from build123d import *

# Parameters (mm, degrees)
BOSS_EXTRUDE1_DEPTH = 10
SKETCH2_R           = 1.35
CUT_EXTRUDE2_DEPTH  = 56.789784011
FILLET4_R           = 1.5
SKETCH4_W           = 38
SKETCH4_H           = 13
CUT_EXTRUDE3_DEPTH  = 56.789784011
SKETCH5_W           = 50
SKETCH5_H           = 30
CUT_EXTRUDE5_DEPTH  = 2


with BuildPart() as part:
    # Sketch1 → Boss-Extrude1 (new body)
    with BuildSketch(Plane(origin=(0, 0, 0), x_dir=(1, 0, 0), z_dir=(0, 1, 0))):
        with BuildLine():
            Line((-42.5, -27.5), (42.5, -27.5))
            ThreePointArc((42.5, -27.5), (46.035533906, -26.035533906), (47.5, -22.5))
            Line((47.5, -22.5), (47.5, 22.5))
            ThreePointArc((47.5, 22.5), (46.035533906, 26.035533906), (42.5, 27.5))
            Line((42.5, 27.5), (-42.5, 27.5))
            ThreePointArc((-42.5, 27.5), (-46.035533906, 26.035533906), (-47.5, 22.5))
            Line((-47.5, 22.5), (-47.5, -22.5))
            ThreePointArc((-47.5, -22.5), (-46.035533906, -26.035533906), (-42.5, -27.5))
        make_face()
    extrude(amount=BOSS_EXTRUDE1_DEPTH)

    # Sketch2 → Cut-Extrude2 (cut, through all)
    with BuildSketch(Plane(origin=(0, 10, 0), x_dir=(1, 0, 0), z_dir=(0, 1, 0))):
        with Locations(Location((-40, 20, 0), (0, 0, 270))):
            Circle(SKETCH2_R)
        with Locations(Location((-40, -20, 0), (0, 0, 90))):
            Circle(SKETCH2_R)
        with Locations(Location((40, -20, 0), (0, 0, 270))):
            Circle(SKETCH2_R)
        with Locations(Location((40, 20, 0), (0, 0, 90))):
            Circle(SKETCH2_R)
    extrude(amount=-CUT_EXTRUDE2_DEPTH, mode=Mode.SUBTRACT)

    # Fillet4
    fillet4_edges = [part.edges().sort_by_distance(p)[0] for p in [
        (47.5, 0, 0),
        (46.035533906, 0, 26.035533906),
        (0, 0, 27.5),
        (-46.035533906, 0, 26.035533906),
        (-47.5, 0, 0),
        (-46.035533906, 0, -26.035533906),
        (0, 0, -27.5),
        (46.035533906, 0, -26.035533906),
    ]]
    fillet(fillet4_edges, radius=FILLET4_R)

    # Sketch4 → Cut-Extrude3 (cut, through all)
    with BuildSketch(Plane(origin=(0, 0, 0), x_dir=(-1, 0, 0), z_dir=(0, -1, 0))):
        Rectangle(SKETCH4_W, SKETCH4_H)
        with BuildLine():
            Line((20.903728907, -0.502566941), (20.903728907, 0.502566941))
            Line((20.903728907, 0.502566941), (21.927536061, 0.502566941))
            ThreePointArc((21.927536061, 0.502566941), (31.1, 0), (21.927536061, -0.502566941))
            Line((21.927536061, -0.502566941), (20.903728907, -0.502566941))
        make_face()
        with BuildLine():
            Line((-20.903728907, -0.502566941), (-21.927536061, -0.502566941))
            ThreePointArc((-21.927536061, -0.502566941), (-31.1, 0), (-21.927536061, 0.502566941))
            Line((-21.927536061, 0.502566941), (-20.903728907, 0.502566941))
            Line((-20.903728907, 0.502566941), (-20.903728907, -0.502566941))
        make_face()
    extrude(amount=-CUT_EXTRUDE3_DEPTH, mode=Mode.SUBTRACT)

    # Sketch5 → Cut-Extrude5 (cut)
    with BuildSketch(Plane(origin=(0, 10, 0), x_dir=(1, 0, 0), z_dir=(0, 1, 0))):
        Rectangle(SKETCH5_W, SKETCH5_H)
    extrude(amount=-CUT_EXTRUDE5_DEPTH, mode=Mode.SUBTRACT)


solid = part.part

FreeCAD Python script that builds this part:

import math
import FreeCAD as App
import Part
import Sketcher
from FreeCAD import Vector
Q = App.Units.Quantity


def edges_at(feature, points):
    """Names of the edges that pass closest to the given points."""
    edges = feature.Shape.Edges
    near = lambda p: min(range(len(edges)), key=lambda i: edges[i].distToShape(Part.Vertex(*p))[0])
    return sorted({f"Edge{near(p) + 1}" for p in points})


def add_polygon(sketch, points):
    """Adds a closed chain of lines whose ends are joined by coincident constraints."""
    first, n = sketch.GeometryCount, len(points)
    for a, b in zip(points, points[1:] + points[:1]):
        sketch.addGeometry(Part.LineSegment(App.Vector(*a, 0), App.Vector(*b, 0)), False)
    for i in range(n):
        sketch.addConstraint(Sketcher.Constraint("Coincident", first + i, 2, first + (i + 1) % n, 1))

doc = App.newDocument("Part")
params = doc.addObject("Spreadsheet::Sheet", "Params")
for row, (alias, value) in enumerate([
    ("sketch1_radius", "5 mm"),
    ("sketch1_width", "85 mm"),
    ("sketch1_height", "45 mm"),
    ("pad1_length", "10 mm"),
    ("sketch2_diameter", "2.7 mm"),
    ("fillet_radius", "1.5 mm"),
    ("sketch3_radius", "4.6 mm"),
    ("sketch3_width", "38 mm"),
    ("sketch3_height", "13 mm"),
    ("sketch4_width", "50 mm"),
    ("sketch4_height", "30 mm"),
    ("pocket3_length", "2 mm"),
], start=1):
    params.set(f"A{row}", alias)
    params.set(f"B{row}", "=" + value)
    params.setAlias(f"B{row}", alias)

body = doc.addObject("PartDesign::Body", "Body")

# Sketch on XZ plane
sketch1 = doc.addObject("Sketcher::SketchObject", "Sketch")
body.addObject(sketch1)
sketch1.AttachmentSupport = (doc.XZ_Plane, [""])
sketch1.MapMode = "FlatFace"
sketch1.addGeometry(Part.LineSegment(Vector(-42, 28, 0), Vector(42, 28, 0)), False)
sketch1.addGeometry(Part.ArcOfCircle(Part.Circle(Vector(42, 22, 0), Vector(0, 0, 1), 5), math.radians(0), math.radians(90)), False)
sketch1.addGeometry(Part.LineSegment(Vector(48, 22, 0), Vector(48, -22, 0)), False)
sketch1.addGeometry(Part.ArcOfCircle(Part.Circle(Vector(42, -22, 0), Vector(0, 0, 1), 5), math.radians(-90), math.radians(0)), False)
sketch1.addGeometry(Part.LineSegment(Vector(42, -28, 0), Vector(-42, -28, 0)), False)
sketch1.addGeometry(Part.ArcOfCircle(Part.Circle(Vector(-42, -22, 0), Vector(0, 0, 1), 5), math.radians(180), math.radians(270)), False)
sketch1.addGeometry(Part.LineSegment(Vector(-48, -22, 0), Vector(-48, 22, 0)), False)
sketch1.addGeometry(Part.ArcOfCircle(Part.Circle(Vector(-42, 22, 0), Vector(0, 0, 1), 5), math.radians(90), math.radians(180)), False)
sketch1.addConstraint(Sketcher.Constraint("Tangent", 0, 2, 1, 2))
sketch1.addConstraint(Sketcher.Constraint("Tangent", 1, 1, 2, 1))
sketch1.addConstraint(Sketcher.Constraint("Tangent", 2, 2, 3, 2))
sketch1.addConstraint(Sketcher.Constraint("Tangent", 3, 1, 4, 1))
sketch1.addConstraint(Sketcher.Constraint("Tangent", 4, 2, 5, 2))
sketch1.addConstraint(Sketcher.Constraint("Tangent", 5, 1, 6, 1))
sketch1.addConstraint(Sketcher.Constraint("Tangent", 6, 2, 7, 2))
sketch1.addConstraint(Sketcher.Constraint("Tangent", 7, 1, 0, 1))
sketch1.addConstraint(Sketcher.Constraint("Horizontal", 0))
sketch1.addConstraint(Sketcher.Constraint("Vertical", 2))
sketch1.addConstraint(Sketcher.Constraint("Horizontal", 4))
sketch1.addConstraint(Sketcher.Constraint("Vertical", 6))
sketch1.addConstraint(Sketcher.Constraint("Equal", 1, 3))
sketch1.addConstraint(Sketcher.Constraint("Equal", 3, 5))
sketch1.addConstraint(Sketcher.Constraint("Equal", 5, 7))
sketch1.addConstraint(Sketcher.Constraint("Symmetric", 1, 3, 5, 3, -1, 1))
sketch1.addConstraint(Sketcher.Constraint("Radius", 1, Q("5 mm")))
sketch1.addConstraint(Sketcher.Constraint("DistanceX", 0, 1, 0, 2, Q("85 mm")))
sketch1.addConstraint(Sketcher.Constraint("DistanceY", 2, 2, 2, 1, Q("45 mm")))
sketch1.setExpression("Constraints[16]", "Params.sketch1_radius")
sketch1.setExpression("Constraints[17]", "Params.sketch1_width")
sketch1.setExpression("Constraints[18]", "Params.sketch1_height")
pad1 = doc.addObject("PartDesign::Pad", "Pad")
body.addObject(pad1)
pad1.Profile = sketch1
pad1.setExpression("Length", "Params.pad1_length")
pad1.Reversed = True

# Sketch on XZ plane
sketch2 = doc.addObject("Sketcher::SketchObject", "Sketch001")
body.addObject(sketch2)
sketch2.AttachmentSupport = (doc.XZ_Plane, [""])
sketch2.MapMode = "FlatFace"
sketch2.AttachmentOffset = App.Placement(Vector(0, 0, -10), App.Rotation())
sketch2.addGeometry(Part.Circle(Vector(-40, -20, 0), Vector(0, 0, 1), 1.4), False)
sketch2.addGeometry(Part.Circle(Vector(-40, 20, 0), Vector(0, 0, 1), 1.4), False)
sketch2.addGeometry(Part.Circle(Vector(40, 20, 0), Vector(0, 0, 1), 1.4), False)
sketch2.addGeometry(Part.Circle(Vector(40, -20, 0), Vector(0, 0, 1), 1.4), False)
sketch2.addConstraint(Sketcher.Constraint("Equal", 0, 1))
sketch2.addConstraint(Sketcher.Constraint("Equal", 1, 2))
sketch2.addConstraint(Sketcher.Constraint("Equal", 2, 3))
sketch2.addConstraint(Sketcher.Constraint("Symmetric", 0, 3, 2, 3, -1, 1))
sketch2.addConstraint(Sketcher.Constraint("Symmetric", 1, 3, 3, 3, -1, 1))
sketch2.addConstraint(Sketcher.Constraint("Symmetric", 1, 3, 2, 3, -2))
sketch2.addConstraint(Sketcher.Constraint("Diameter", 0, Q("2.7 mm")))
sketch2.addConstraint(Sketcher.Constraint("DistanceX", 0, 3, -1, 1, Q("40 mm")))
sketch2.addConstraint(Sketcher.Constraint("DistanceY", 0, 3, -1, 1, Q("20 mm")))
sketch2.setExpression("Constraints[6]", "Params.sketch2_diameter")
pocket1 = doc.addObject("PartDesign::Pocket", "Pocket")
body.addObject(pocket1)
pocket1.Profile = sketch2
pocket1.Type = "ThroughAll"
pocket1.Reversed = True
doc.recompute()

fillet = doc.addObject("PartDesign::Fillet", "Fillet")
body.addObject(fillet)
fillet.Base = (pocket1, edges_at(pocket1, [
    (47.5, 0, 0),
    (46.036, 0, 26.036),
    (0, 0, 27.5),
    (-46.036, 0, 26.036),
    (-47.5, 0, 0),
    (-46.036, 0, -26.036),
    (0, 0, -27.5),
    (46.036, 0, -26.036),
]))
fillet.setExpression("Radius", "Params.fillet_radius")

# Sketch on XZ plane
sketch3 = doc.addObject("Sketcher::SketchObject", "Sketch002")
body.addObject(sketch3)
sketch3.AttachmentSupport = (doc.XZ_Plane, [""])
sketch3.MapMode = "FlatFace"
add_polygon(sketch3, [(19, -6.5), (19, 6.5), (-19, 6.5), (-19, -6.5)])  # lines 0-3
sketch3.addGeometry(Part.LineSegment(Vector(-20.9, -0.5, 0), Vector(-20.9, 0.5, 0)), False)  # 4
sketch3.addGeometry(Part.LineSegment(Vector(-20.9, 0.5, 0), Vector(-21.9, 0.5, 0)), False)  # 5
sketch3.addGeometry(Part.ArcOfCircle(Part.Circle(Vector(-26.5, 0, 0), Vector(0, 0, 1), 4.6), math.radians(6), math.radians(354)), False)  # 6
sketch3.addGeometry(Part.LineSegment(Vector(-21.9, -0.5, 0), Vector(-20.9, -0.5, 0)), False)  # 7
sketch3.addGeometry(Part.LineSegment(Vector(21.9, 0.5, 0), Vector(20.9, 0.5, 0)), False)  # 8
sketch3.addGeometry(Part.LineSegment(Vector(20.9, 0.5, 0), Vector(20.9, -0.5, 0)), False)  # 9
sketch3.addGeometry(Part.LineSegment(Vector(20.9, -0.5, 0), Vector(21.9, -0.5, 0)), False)  # 10
sketch3.addGeometry(Part.ArcOfCircle(Part.Circle(Vector(26.5, 0, 0), Vector(0, 0, 1), 4.6), math.radians(-174), math.radians(174)), False)  # 11
sketch3.addConstraint(Sketcher.Constraint("Coincident", 4, 2, 5, 1))
sketch3.addConstraint(Sketcher.Constraint("Coincident", 5, 2, 6, 1))
sketch3.addConstraint(Sketcher.Constraint("Coincident", 6, 2, 7, 1))
sketch3.addConstraint(Sketcher.Constraint("Coincident", 7, 2, 4, 1))
sketch3.addConstraint(Sketcher.Constraint("Coincident", 8, 2, 9, 1))
sketch3.addConstraint(Sketcher.Constraint("Coincident", 9, 2, 10, 1))
sketch3.addConstraint(Sketcher.Constraint("Coincident", 10, 2, 11, 1))
sketch3.addConstraint(Sketcher.Constraint("Coincident", 11, 2, 8, 1))
sketch3.addConstraint(Sketcher.Constraint("Vertical", 0))
sketch3.addConstraint(Sketcher.Constraint("Horizontal", 1))
sketch3.addConstraint(Sketcher.Constraint("Vertical", 2))
sketch3.addConstraint(Sketcher.Constraint("Horizontal", 3))
sketch3.addConstraint(Sketcher.Constraint("Vertical", 4))
sketch3.addConstraint(Sketcher.Constraint("Horizontal", 5))
sketch3.addConstraint(Sketcher.Constraint("Horizontal", 7))
sketch3.addConstraint(Sketcher.Constraint("Horizontal", 8))
sketch3.addConstraint(Sketcher.Constraint("Vertical", 9))
sketch3.addConstraint(Sketcher.Constraint("Horizontal", 10))
sketch3.addConstraint(Sketcher.Constraint("Equal", 6, 11))
sketch3.addConstraint(Sketcher.Constraint("Symmetric", 6, 3, 11, 3, -1, 1))
sketch3.addConstraint(Sketcher.Constraint("Symmetric", 0, 2, 2, 2, -1, 1))
sketch3.addConstraint(Sketcher.Constraint("Symmetric", 7, 2, 8, 2, -1, 1))
sketch3.addConstraint(Sketcher.Constraint("Symmetric", 6, 2, 10, 2, -2))
sketch3.addConstraint(Sketcher.Constraint("Horizontal", 5, 2, 8, 2))
sketch3.addConstraint(Sketcher.Constraint("Radius", 6, Q("4.6 mm")))
sketch3.addConstraint(Sketcher.Constraint("DistanceX", 1, 2, 1, 1, Q("38 mm")))
sketch3.addConstraint(Sketcher.Constraint("DistanceY", 0, 1, 0, 2, Q("13 mm")))
sketch3.addConstraint(Sketcher.Constraint("DistanceX", 6, 3, 11, 3, Q("53 mm")))
sketch3.addConstraint(Sketcher.Constraint("DistanceX", 5, 2, 5, 1, Q("1.023807 mm")))
sketch3.addConstraint(Sketcher.Constraint("DistanceY", 4, 1, 4, 2, Q("1.005134 mm")))
sketch3.setExpression("Constraints[28]", "Params.sketch3_radius")
sketch3.setExpression("Constraints[29]", "Params.sketch3_width")
sketch3.setExpression("Constraints[30]", "Params.sketch3_height")
pocket2 = doc.addObject("PartDesign::Pocket", "Pocket001")
body.addObject(pocket2)
pocket2.Profile = sketch3
pocket2.Type = "ThroughAll"

# Sketch on XZ plane
sketch4 = doc.addObject("Sketcher::SketchObject", "Sketch003")
body.addObject(sketch4)
sketch4.AttachmentSupport = (doc.XZ_Plane, [""])
sketch4.MapMode = "FlatFace"
sketch4.AttachmentOffset = App.Placement(Vector(0, 0, -10), App.Rotation())
add_polygon(sketch4, [(-25, -15), (-25, 15), (25, 15), (25, -15)])  # lines 0-3
sketch4.addConstraint(Sketcher.Constraint("Vertical", 0))
sketch4.addConstraint(Sketcher.Constraint("Horizontal", 1))
sketch4.addConstraint(Sketcher.Constraint("Vertical", 2))
sketch4.addConstraint(Sketcher.Constraint("Horizontal", 3))
sketch4.addConstraint(Sketcher.Constraint("Symmetric", 0, 2, 2, 2, -1, 1))
sketch4.addConstraint(Sketcher.Constraint("DistanceX", 1, 1, 1, 2, Q("50 mm")))
sketch4.addConstraint(Sketcher.Constraint("DistanceY", 0, 1, 0, 2, Q("30 mm")))
sketch4.setExpression("Constraints[9]", "Params.sketch4_width")
sketch4.setExpression("Constraints[10]", "Params.sketch4_height")
pocket3 = doc.addObject("PartDesign::Pocket", "Pocket002")
body.addObject(pocket3)
pocket3.Profile = sketch4
pocket3.setExpression("Length", "Params.pocket3_length")
pocket3.Reversed = True

doc.recompute()
